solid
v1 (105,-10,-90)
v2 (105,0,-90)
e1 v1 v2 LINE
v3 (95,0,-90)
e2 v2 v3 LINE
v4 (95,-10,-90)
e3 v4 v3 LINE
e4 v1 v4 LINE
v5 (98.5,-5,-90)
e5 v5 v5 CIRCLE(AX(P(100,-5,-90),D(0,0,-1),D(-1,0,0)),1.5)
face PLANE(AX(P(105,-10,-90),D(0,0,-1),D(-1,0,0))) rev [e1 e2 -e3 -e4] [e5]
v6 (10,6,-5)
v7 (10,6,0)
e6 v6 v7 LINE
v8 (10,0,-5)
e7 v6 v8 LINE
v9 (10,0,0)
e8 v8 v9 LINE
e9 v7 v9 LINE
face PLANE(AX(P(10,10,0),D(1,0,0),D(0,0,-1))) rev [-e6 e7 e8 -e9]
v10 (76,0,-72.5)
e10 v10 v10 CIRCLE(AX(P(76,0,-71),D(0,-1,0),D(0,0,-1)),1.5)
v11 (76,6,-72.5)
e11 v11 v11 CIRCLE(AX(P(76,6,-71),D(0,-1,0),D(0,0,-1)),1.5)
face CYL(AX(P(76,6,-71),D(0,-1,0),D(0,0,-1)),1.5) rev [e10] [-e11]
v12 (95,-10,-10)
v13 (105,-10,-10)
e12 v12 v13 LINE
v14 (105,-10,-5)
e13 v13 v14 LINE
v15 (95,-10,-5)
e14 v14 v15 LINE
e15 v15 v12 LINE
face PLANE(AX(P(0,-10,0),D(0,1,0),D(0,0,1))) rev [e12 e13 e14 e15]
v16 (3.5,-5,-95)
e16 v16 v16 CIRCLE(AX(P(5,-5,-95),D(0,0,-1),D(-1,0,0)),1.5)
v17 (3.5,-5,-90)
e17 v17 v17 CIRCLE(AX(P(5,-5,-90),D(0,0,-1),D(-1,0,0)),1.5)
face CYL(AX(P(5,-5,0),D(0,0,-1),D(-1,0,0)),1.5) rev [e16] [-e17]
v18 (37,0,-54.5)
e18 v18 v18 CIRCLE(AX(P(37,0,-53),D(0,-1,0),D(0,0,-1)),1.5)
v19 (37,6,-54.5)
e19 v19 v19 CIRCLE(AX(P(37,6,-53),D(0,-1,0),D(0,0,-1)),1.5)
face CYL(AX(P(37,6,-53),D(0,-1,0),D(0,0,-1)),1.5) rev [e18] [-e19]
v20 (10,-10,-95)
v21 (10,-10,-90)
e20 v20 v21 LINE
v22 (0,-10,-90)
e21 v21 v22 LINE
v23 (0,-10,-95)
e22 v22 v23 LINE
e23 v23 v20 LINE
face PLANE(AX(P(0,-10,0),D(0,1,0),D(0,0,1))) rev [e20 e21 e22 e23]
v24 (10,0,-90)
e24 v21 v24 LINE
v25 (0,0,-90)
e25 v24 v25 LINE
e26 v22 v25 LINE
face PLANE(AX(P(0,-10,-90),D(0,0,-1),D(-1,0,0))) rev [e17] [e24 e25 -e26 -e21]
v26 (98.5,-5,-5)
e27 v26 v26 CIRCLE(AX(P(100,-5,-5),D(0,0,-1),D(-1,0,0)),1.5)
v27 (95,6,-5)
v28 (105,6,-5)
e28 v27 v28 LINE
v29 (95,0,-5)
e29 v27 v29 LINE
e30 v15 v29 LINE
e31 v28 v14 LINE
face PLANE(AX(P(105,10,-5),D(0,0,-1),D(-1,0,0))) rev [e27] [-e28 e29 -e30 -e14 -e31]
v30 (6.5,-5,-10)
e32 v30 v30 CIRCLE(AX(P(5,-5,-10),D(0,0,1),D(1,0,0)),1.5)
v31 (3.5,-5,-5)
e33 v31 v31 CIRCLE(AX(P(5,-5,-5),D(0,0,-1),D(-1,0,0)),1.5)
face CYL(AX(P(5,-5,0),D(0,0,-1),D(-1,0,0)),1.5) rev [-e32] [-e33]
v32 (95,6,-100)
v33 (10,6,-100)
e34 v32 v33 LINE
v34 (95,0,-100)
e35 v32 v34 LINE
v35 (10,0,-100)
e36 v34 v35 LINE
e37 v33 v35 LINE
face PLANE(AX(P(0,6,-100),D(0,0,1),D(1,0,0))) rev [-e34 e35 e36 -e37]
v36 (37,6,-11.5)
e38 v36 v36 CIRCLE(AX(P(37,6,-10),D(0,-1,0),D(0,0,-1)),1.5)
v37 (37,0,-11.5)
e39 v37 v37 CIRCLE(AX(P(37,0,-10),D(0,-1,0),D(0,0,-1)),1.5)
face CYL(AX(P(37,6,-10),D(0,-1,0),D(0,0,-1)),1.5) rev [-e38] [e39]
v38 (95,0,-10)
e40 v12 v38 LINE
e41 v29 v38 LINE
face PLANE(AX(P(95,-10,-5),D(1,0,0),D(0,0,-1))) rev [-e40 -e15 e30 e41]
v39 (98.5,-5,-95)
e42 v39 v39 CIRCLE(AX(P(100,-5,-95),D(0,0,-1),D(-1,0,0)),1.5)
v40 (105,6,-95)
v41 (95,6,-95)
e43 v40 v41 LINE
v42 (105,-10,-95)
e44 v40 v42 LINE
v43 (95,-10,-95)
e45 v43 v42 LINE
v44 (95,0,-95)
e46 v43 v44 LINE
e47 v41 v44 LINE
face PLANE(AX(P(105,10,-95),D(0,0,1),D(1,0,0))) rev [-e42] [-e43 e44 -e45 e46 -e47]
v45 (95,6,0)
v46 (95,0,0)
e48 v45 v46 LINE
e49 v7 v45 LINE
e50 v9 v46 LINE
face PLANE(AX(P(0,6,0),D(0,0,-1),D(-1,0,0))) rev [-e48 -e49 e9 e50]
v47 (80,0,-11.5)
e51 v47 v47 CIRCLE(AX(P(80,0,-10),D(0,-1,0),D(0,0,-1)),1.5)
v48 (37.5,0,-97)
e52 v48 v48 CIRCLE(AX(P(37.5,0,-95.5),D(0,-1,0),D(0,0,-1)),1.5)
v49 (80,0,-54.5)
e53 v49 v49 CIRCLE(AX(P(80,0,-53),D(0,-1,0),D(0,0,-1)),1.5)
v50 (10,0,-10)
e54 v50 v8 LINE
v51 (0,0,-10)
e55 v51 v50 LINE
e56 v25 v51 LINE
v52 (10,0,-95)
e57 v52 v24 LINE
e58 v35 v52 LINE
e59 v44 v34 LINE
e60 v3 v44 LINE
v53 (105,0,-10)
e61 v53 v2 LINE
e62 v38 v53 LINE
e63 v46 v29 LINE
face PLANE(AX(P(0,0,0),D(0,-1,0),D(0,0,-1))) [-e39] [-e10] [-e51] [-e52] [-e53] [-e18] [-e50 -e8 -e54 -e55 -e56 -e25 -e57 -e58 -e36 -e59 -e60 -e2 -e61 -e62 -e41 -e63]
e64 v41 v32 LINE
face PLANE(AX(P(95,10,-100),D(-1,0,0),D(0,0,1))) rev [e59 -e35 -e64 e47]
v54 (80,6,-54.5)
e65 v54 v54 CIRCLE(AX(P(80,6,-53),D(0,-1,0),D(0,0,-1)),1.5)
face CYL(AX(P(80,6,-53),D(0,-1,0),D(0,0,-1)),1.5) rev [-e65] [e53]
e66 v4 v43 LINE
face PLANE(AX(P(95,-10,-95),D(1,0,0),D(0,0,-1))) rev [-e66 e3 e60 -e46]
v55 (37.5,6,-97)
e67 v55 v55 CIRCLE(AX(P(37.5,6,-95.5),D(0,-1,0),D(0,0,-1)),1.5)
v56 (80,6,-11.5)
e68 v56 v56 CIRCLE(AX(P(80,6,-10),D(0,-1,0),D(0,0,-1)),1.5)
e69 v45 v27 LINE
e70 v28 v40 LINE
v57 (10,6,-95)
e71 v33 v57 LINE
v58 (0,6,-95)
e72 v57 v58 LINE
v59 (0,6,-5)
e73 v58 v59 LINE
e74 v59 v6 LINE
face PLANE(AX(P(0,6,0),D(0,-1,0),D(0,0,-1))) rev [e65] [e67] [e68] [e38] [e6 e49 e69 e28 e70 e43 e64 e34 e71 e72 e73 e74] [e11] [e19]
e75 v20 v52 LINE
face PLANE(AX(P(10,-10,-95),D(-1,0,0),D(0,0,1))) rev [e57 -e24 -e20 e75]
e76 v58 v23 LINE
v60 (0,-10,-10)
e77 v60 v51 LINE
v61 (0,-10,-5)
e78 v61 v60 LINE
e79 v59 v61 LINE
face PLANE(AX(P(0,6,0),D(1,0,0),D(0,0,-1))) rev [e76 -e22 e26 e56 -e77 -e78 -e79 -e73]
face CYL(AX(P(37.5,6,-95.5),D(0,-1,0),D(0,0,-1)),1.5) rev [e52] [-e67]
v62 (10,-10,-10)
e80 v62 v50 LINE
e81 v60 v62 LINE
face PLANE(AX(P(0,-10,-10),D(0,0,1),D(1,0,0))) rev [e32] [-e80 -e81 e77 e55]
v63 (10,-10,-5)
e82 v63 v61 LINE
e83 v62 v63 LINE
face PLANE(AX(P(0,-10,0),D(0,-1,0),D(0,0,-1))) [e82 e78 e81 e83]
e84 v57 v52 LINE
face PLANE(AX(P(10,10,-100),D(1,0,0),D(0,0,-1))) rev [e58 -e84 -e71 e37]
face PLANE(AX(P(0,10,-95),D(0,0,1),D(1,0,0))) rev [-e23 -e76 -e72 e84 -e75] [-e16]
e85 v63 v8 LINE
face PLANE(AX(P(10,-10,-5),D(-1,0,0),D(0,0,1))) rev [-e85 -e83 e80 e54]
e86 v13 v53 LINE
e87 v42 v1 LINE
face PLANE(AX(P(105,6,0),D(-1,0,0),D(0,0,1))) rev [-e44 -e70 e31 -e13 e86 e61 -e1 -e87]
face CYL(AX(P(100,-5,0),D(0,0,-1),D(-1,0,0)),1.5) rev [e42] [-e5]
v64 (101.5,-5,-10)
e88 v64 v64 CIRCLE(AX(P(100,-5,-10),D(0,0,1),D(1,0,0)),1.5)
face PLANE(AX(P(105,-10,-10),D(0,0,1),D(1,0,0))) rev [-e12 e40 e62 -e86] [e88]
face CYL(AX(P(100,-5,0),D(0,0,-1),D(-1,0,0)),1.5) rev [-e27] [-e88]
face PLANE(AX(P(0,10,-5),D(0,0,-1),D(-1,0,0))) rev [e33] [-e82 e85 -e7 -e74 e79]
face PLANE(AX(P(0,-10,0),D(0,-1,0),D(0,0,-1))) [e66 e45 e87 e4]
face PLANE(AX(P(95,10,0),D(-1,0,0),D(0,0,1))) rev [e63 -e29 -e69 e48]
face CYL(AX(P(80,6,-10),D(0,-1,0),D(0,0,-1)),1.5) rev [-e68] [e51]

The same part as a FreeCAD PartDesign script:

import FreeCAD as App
import Part
import Sketcher

V = App.Vector

doc = App.newDocument("Part")
body = doc.addObject("PartDesign::Body", "Body")

# Sketch on XZ plane
sketch1 = body.newObject("Sketcher::SketchObject", "Sketch")
sketch1.AttachmentSupport = (doc.getObject("XZ_Plane"), [""])
sketch1.MapMode = "FlatFace"
sketch1.addGeometry([
    Part.LineSegment(V(0, -100, 0), V(0, 0, 0)),
    Part.LineSegment(V(0, 0, 0), V(105, 0, 0)),
    Part.LineSegment(V(105, 0, 0), V(105, -100, 0)),
    Part.LineSegment(V(105, -100, 0), V(0, -100, 0)),
], False)
sketch1.addConstraint([
    Sketcher.Constraint("Coincident", 0, 2, 1, 1),
    Sketcher.Constraint("Coincident", 1, 2, 2, 1),
    Sketcher.Constraint("Coincident", 2, 2, 3, 1),
    Sketcher.Constraint("Coincident", 3, 2, 0, 1),
    Sketcher.Constraint("Vertical", 0),
    Sketcher.Constraint("Horizontal", 1),
    Sketcher.Constraint("Vertical", 2),
    Sketcher.Constraint("Horizontal", 3),
    Sketcher.Constraint("Coincident", 0, 2, -1, 1),
    Sketcher.Constraint("DistanceX", 1, 1, 1, 2, 105.0),
    Sketcher.Constraint("DistanceY", 0, 1, 0, 2, 100.0),
])
pad1 = body.newObject("PartDesign::Pad", "Pad")
pad1.Profile = sketch1
pad1.Length = 6
pad1.Reversed = True

# Sketch on XZ plane
sketch2 = body.newObject("Sketcher::SketchObject", "Sketch001")
sketch2.AttachmentSupport = (doc.getObject("XZ_Plane"), [""])
sketch2.MapMode = "FlatFace"
sketch2.addGeometry([
    Part.LineSegment(V(95, -95, 0), V(95, -100, 0)),  # 0
    Part.LineSegment(V(95, -100, 0), V(105, -100, 0)),  # 1
    Part.LineSegment(V(105, -100, 0), V(105, -95, 0)),  # 2
    Part.LineSegment(V(105, -95, 0), V(95, -95, 0)),  # 3
    Part.LineSegment(V(0, -95, 0), V(0, -100, 0)),  # 4
    Part.LineSegment(V(0, -100, 0), V(10, -100, 0)),  # 5
    Part.LineSegment(V(10, -100, 0), V(10, -95, 0)),  # 6
    Part.LineSegment(V(10, -95, 0), V(0, -95, 0)),  # 7
    Part.LineSegment(V(95, 0, 0), V(95, -5, 0)),  # 8
    Part.LineSegment(V(95, -5, 0), V(105, -5, 0)),  # 9
    Part.LineSegment(V(105, -5, 0), V(105, 0, 0)),  # 10
    Part.LineSegment(V(105, 0, 0), V(95, 0, 0)),  # 11
    Part.LineSegment(V(0, 0, 0), V(0, -5, 0)),  # 12
    Part.LineSegment(V(0, -5, 0), V(10, -5, 0)),  # 13
    Part.LineSegment(V(10, -5, 0), V(10, 0, 0)),  # 14
    Part.LineSegment(V(10, 0, 0), V(0, 0, 0)),  # 15
], False)
sketch2.addConstraint([
    Sketcher.Constraint("Coincident", 0, 2, 1, 1),
    Sketcher.Constraint("Coincident", 1, 2, 2, 1),
    Sketcher.Constraint("Coincident", 2, 2, 3, 1),
    Sketcher.Constraint("Coincident", 3, 2, 0, 1),
    Sketcher.Constraint("Coincident", 4, 2, 5, 1),
    Sketcher.Constraint("Coincident", 5, 2, 6, 1),
    Sketcher.Constraint("Coincident", 6, 2, 7, 1),
    Sketcher.Constraint("Coincident", 7, 2, 4, 1),
    Sketcher.Constraint("Coincident", 8, 2, 9, 1),
    Sketcher.Constraint("Coincident", 9, 2, 10, 1),
    Sketcher.Constraint("Coincident", 10, 2, 11, 1),
    Sketcher.Constraint("Coincident", 11, 2, 8, 1),
    Sketcher.Constraint("Coincident", 12, 2, 13, 1),
    Sketcher.Constraint("Coincident", 13, 2, 14, 1),
    Sketcher.Constraint("Coincident", 14, 2, 15, 1),
    Sketcher.Constraint("Coincident", 15, 2, 12, 1),
    Sketcher.Constraint("Vertical", 0),
    Sketcher.Constraint("Horizontal", 1),
    Sketcher.Constraint("Vertical", 2),
    Sketcher.Constraint("Horizontal", 3),
    Sketcher.Constraint("Vertical", 4),
    Sketcher.Constraint("Horizontal", 5),
    Sketcher.Constraint("Vertical", 6),
    Sketcher.Constraint("Horizontal", 7),
    Sketcher.Constraint("Vertical", 8),
    Sketcher.Constraint("Horizontal", 9),
    Sketcher.Constraint("Vertical", 10),
    Sketcher.Constraint("Horizontal", 11),
    Sketcher.Constraint("Vertical", 12),
    Sketcher.Constraint("Horizontal", 13),
    Sketcher.Constraint("Vertical", 14),
    Sketcher.Constraint("Horizontal", 15),
    Sketcher.Constraint("Coincident", 15, 2, -1, 1),
    Sketcher.Constraint("PointOnObject", 4, 2, -2),
    Sketcher.Constraint("PointOnObject", 10, 2, -1),
    Sketcher.Constraint("Horizontal", 1, 2, 4, 2),
    Sketcher.Constraint("Horizontal", 3, 2, 6, 2),
    Sketcher.Constraint("Horizontal", 9, 2, 12, 2),
    Sketcher.Constraint("Vertical", 3, 2, 8, 2),
    Sketcher.Constraint("Vertical", 2, 2, 9, 2),
    Sketcher.Constraint("Vertical", 6, 2, 13, 2),
    Sketcher.Constraint("Equal", 3, 5),
    Sketcher.Constraint("Equal", 6, 8),
    Sketcher.Constraint("DistanceX", 1, 1, 1, 2, 10.0),
    Sketcher.Constraint("DistanceY", 0, 2, 0, 1, 5.0),
    Sketcher.Constraint("DistanceX", -1, 1, 0, 2, 95.0),
    Sketcher.Constraint("DistanceY", 0, 2, -1, 1, 100.0),
])
pocket1 = body.newObject("PartDesign::Pocket", "Pocket")
pocket1.Profile = sketch2
pocket1.Length = 10

# Sketch on XZ plane
sketch3 = body.newObject("Sketcher::SketchObject", "Sketch002")
sketch3.AttachmentSupport = (doc.getObject("XZ_Plane"), [""])
sketch3.MapMode = "FlatFace"
sketch3.addGeometry([
    Part.LineSegment(V(105, -95, 0), V(105, -90, 0)),  # 0
    Part.LineSegment(V(105, -90, 0), V(95, -90, 0)),  # 1
    Part.LineSegment(V(95, -90, 0), V(95, -95, 0)),  # 2
    Part.LineSegment(V(95, -95, 0), V(105, -95, 0)),  # 3
    Part.LineSegment(V(105, -10, 0), V(105, -5, 0)),  # 4
    Part.LineSegment(V(105, -5, 0), V(95, -5, 0)),  # 5
    Part.LineSegment(V(95, -5, 0), V(95, -10, 0)),  # 6
    Part.LineSegment(V(95, -10, 0), V(105, -10, 0)),  # 7
    Part.LineSegment(V(10, -10, 0), V(10, -5, 0)),  # 8
    Part.LineSegment(V(10, -5, 0), V(0, -5, 0)),  # 9
    Part.LineSegment(V(0, -5, 0), V(0, -10, 0)),  # 10
    Part.LineSegment(V(0, -10, 0), V(10, -10, 0)),  # 11
    Part.LineSegment(V(10, -95, 0), V(10, -90, 0)),  # 12
    Part.LineSegment(V(10, -90, 0), V(0, -90, 0)),  # 13
    Part.LineSegment(V(0, -90, 0), V(0, -95, 0)),  # 14
    Part.LineSegment(V(0, -95, 0), V(10, -95, 0)),  # 15
], False)
sketch3.addConstraint([
    Sketcher.Constraint("Coincident", 0, 2, 1, 1),
    Sketcher.Constraint("Coincident", 1, 2, 2, 1),
    Sketcher.Constraint("Coincident", 2, 2, 3, 1),
    Sketcher.Constraint("Coincident", 3, 2, 0, 1),
    Sketcher.Constraint("Coincident", 4, 2, 5, 1),
    Sketcher.Constraint("Coincident", 5, 2, 6, 1),
    Sketcher.Constraint("Coincident", 6, 2, 7, 1),
    Sketcher.Constraint("Coincident", 7, 2, 4, 1),
    Sketcher.Constraint("Coincident", 8, 2, 9, 1),
    Sketcher.Constraint("Coincident", 9, 2, 10, 1),
    Sketcher.Constraint("Coincident", 10, 2, 11, 1),
    Sketcher.Constraint("Coincident", 11, 2, 8, 1),
    Sketcher.Constraint("Coincident", 12, 2, 13, 1),
    Sketcher.Constraint("Coincident", 13, 2, 14, 1),
    Sketcher.Constraint("Coincident", 14, 2, 15, 1),
    Sketcher.Constraint("Coincident", 15, 2, 12, 1),
    Sketcher.Constraint("Vertical", 0),
    Sketcher.Constraint("Horizontal", 1),
    Sketcher.Constraint("Vertical", 2),
    Sketcher.Constraint("Horizontal", 3),
    Sketcher.Constraint("Vertical", 4),
    Sketcher.Constraint("Horizontal", 5),
    Sketcher.Constraint("Vertical", 6),
    Sketcher.Constraint("Horizontal", 7),
    Sketcher.Constraint("Vertical", 8),
    Sketcher.Constraint("Horizontal", 9),
    Sketcher.Constraint("Vertical", 10),
    Sketcher.Constraint("Horizontal", 11),
    Sketcher.Constraint("Vertical", 12),
    Sketcher.Constraint("Horizontal", 13),
    Sketcher.Constraint("Vertical", 14),
    Sketcher.Constraint("Horizontal", 15),
    Sketcher.Constraint("PointOnObject", 9, 2, -2),
    Sketcher.Constraint("PointOnObject", 13, 2, -2),
    Sketcher.Constraint("Horizontal", 5, 2, 8, 2),
    Sketcher.Constraint("Horizontal", 7, 2, 10, 2),
    Sketcher.Constraint("Horizontal", 1, 2, 12, 2),
    Sketcher.Constraint("Horizontal", 3, 2, 14, 2),
    Sketcher.Constraint("Vertical", 3, 2, 4, 2),
    Sketcher.Constraint("Vertical", 2, 2, 5, 2),
    Sketcher.Constraint("Vertical", 11, 2, 12, 2),
    Sketcher.Constraint("Equal", 7, 9),
    Sketcher.Constraint("Equal", 2, 4),
    Sketcher.Constraint("DistanceX", 1, 2, 1, 1, 10.0),
    Sketcher.Constraint("DistanceY", 0, 1, 0, 2, 5.0),
    Sketcher.Constraint("DistanceX", -1, 1, 0, 2, 105.0),
    Sketcher.Constraint("DistanceY", 0, 2, -1, 1, 90.0),
    Sketcher.Constraint("DistanceY", 4, 2, -1, 1, 5.0),
])
pad2 = body.newObject("PartDesign::Pad", "Pad001")
pad2.Profile = sketch3
pad2.Length = 10

# Sketch on XY plane
sketch4 = body.newObject("Sketcher::SketchObject", "Sketch003")
sketch4.AttachmentSupport = (doc.getObject("XY_Plane"), [""])
sketch4.MapMode = "FlatFace"
sketch4.AttachmentOffset = App.Placement(V(0, 0, -95), App.Rotation())
sketch4.addGeometry([
    Part.Circle(V(100, -5, 0), V(0, 0, 1), 1.5),
    Part.Circle(V(5, -5, 0), V(0, 0, 1), 1.5),
], False)
sketch4.addConstraint([
    Sketcher.Constraint("Equal", 0, 1),
    Sketcher.Constraint("Horizontal", 0, 3, 1, 3),
    Sketcher.Constraint("Diameter", 0, 3.0),
    Sketcher.Constraint("DistanceX", -1, 1, 0, 3, 100.0),
    Sketcher.Constraint("DistanceY", 0, 3, -1, 1, 5.0),
    Sketcher.Constraint("DistanceX", -1, 1, 1, 3, 5.0),
])
pocket2 = body.newObject("PartDesign::Pocket", "Pocket001")
pocket2.Profile = sketch4
pocket2.Type = "ThroughAll"
pocket2.Reversed = True

# Sketch on XZ plane
sketch5 = body.newObject("Sketcher::SketchObject", "Sketch004")
sketch5.AttachmentSupport = (doc.getObject("XZ_Plane"), [""])
sketch5.MapMode = "FlatFace"
sketch5.addGeometry([
    Part.Circle(V(37, -10, 0), V(0, 0, 1), 1.5),
    Part.Circle(V(37, -53, 0), V(0, 0, 1), 1.5),
    Part.Circle(V(80, -53, 0), V(0, 0, 1), 1.5),
    Part.Circle(V(80, -10, 0), V(0, 0, 1), 1.5),
], False)
sketch5.addConstraint([
    Sketcher.Constraint("Equal", 0, 1),
    Sketcher.Constraint("Equal", 1, 2),
    Sketcher.Constraint("Equal", 2, 3),
    Sketcher.Constraint("Horizontal", 1, 3, 2, 3),
    Sketcher.Constraint("Horizontal", 0, 3, 3, 3),
    Sketcher.Constraint("Vertical", 0, 3, 1, 3),
    Sketcher.Constraint("Vertical", 2, 3, 3, 3),
    Sketcher.Constraint("Diameter", 0, 3.0),
    Sketcher.Constraint("DistanceX", -1, 1, 0, 3, 37.0),
    Sketcher.Constraint("DistanceY", 0, 3, -1, 1, 10.0),
    Sketcher.Constraint("DistanceY", 1, 3, -1, 1, 53.0),
    Sketcher.Constraint("DistanceX", -1, 1, 2, 3, 80.0),
])
pocket3 = body.newObject("PartDesign::Pocket", "Pocket002")
pocket3.Profile = sketch5
pocket3.Length = 6

# Sketch on XZ plane
sketch6 = body.newObject("Sketcher::SketchObject", "Sketch005")
sketch6.AttachmentSupport = (doc.getObject("XZ_Plane"), [""])
sketch6.MapMode = "FlatFace"
sketch6.addGeometry([
    Part.Circle(V(37.5, -95.5, 0), V(0, 0, 1), 1.5),
    Part.Circle(V(76, -71, 0), V(0, 0, 1), 1.5),
], False)
sketch6.addConstraint([
    Sketcher.Constraint("Equal", 0, 1),
    Sketcher.Constraint("Diameter", 0, 3.0),
    Sketcher.Constraint("DistanceX", -1, 1, 1, 3, 76.0),
    Sketcher.Constraint("DistanceY", 1, 3, -1, 1, 71.0),
    Sketcher.Constraint("DistanceX", -1, 1, 0, 3, 37.5),
    Sketcher.Constraint("DistanceY", 0, 3, -1, 1, 95.5),
])
pocket4 = body.newObject("PartDesign::Pocket", "Pocket003")
pocket4.Profile = sketch6
pocket4.Length = 6

doc.recompute()
